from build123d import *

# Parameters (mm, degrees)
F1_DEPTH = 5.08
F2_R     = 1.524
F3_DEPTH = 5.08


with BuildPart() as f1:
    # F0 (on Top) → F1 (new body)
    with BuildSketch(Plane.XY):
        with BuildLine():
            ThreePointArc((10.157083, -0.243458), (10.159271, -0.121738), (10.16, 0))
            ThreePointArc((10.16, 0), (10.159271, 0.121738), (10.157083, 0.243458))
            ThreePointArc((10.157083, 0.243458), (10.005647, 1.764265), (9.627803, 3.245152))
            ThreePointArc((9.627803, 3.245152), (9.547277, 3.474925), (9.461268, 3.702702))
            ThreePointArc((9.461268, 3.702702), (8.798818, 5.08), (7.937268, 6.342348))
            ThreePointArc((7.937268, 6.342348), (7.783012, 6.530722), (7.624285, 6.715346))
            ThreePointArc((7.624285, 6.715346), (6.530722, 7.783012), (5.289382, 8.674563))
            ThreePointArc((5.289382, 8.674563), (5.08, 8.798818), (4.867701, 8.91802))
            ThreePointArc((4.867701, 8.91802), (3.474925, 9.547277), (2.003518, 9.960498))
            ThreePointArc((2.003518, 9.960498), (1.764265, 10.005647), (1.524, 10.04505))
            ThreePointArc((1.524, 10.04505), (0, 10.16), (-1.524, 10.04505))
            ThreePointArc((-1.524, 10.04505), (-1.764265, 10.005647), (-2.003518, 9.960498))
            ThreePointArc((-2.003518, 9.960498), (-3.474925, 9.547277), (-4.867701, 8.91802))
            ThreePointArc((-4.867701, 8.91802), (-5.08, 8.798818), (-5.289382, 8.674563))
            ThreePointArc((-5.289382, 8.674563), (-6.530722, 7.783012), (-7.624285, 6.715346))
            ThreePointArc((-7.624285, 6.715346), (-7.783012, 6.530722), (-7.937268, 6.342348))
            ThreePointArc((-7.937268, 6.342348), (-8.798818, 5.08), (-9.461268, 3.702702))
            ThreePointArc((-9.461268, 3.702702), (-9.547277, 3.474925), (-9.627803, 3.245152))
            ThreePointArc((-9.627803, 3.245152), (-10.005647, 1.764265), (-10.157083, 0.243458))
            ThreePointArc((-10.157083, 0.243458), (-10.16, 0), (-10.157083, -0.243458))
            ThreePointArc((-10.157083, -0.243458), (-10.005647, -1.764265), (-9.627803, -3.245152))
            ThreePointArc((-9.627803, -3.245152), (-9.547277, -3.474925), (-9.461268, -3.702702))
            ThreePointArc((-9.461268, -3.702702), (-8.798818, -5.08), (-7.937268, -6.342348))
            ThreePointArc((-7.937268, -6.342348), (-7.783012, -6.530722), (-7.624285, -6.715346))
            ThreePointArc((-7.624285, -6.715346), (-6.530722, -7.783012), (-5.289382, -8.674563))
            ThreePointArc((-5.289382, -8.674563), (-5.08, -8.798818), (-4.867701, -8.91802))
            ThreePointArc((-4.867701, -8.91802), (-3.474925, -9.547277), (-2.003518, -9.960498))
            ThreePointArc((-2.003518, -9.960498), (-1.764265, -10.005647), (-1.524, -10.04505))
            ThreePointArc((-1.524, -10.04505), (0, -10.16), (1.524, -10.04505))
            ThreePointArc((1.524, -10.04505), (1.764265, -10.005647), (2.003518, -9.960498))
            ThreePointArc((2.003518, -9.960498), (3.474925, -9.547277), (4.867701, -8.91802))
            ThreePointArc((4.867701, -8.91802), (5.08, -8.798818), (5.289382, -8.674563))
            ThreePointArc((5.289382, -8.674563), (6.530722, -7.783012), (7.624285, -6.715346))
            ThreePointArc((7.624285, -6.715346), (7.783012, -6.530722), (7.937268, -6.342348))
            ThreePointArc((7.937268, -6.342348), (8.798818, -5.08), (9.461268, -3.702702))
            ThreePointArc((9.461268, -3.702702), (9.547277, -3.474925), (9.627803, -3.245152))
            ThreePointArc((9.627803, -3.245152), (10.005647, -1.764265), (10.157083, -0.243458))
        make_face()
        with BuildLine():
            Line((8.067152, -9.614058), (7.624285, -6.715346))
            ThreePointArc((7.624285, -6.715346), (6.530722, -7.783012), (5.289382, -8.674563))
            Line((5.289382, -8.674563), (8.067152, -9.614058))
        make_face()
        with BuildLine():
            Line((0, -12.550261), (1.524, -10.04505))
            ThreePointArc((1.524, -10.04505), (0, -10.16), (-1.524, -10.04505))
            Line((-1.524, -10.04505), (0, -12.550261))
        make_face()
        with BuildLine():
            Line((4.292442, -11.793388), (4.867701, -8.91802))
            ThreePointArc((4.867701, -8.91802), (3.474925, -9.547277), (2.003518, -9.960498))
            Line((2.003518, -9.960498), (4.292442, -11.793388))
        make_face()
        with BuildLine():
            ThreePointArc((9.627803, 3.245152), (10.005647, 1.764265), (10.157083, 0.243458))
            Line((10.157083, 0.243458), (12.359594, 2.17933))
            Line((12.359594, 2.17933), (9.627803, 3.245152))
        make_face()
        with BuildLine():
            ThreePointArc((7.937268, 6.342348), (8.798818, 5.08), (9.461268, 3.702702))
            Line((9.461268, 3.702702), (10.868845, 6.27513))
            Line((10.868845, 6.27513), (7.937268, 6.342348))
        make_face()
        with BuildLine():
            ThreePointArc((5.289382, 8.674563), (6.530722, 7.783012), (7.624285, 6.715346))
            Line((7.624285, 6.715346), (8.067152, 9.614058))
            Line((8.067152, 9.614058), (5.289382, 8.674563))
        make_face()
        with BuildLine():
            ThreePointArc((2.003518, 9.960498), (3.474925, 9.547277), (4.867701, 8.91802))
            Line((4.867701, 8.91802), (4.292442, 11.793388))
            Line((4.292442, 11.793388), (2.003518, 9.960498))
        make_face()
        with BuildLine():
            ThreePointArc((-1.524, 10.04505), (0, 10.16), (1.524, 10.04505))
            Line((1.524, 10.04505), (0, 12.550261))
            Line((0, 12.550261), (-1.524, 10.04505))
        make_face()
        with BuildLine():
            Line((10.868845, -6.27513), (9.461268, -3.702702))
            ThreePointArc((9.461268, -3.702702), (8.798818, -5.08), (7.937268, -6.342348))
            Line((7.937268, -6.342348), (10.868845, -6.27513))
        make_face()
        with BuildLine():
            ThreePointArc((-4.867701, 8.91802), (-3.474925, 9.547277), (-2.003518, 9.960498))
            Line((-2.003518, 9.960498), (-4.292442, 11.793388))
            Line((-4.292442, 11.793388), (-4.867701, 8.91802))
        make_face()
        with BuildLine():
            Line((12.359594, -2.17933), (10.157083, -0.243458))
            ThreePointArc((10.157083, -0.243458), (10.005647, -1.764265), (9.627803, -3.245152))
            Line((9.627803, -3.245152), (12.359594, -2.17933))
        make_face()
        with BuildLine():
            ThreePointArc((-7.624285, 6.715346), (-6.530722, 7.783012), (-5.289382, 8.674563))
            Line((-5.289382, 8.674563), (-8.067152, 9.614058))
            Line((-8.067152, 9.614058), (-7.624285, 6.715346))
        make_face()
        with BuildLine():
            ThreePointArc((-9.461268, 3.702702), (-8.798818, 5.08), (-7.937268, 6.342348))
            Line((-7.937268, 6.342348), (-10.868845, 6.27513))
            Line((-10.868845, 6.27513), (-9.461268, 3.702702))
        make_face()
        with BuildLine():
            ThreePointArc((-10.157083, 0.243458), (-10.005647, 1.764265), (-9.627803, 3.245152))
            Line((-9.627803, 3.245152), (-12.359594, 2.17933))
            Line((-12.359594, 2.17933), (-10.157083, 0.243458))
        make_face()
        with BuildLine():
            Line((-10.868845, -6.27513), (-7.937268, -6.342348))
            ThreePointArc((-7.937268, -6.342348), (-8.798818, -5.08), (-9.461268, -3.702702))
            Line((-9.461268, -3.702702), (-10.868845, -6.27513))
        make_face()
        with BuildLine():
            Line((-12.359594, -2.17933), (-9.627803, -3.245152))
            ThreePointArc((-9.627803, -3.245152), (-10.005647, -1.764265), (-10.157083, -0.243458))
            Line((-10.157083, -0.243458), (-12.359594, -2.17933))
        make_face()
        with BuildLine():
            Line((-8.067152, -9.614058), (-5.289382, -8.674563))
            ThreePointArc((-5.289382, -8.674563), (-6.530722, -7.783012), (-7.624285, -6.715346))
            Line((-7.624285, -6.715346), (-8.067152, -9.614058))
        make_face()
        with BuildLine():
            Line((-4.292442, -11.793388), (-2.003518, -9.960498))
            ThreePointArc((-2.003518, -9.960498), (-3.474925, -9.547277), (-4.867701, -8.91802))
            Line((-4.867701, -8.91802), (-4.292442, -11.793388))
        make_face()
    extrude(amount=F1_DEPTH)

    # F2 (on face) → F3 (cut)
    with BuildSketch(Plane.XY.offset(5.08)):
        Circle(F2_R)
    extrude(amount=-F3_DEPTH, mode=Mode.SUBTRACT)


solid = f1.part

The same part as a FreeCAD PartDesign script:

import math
import FreeCAD as App
import Part
import Sketcher

V = App.Vector
Q = App.Units.Quantity

doc = App.newDocument("Part")
params = doc.addObject("Spreadsheet::Sheet", "Params")
for row, (alias, value) in enumerate([
    ("pad1_length", "0.2 in"),
    ("sketch2_diameter", "0.12 in"),
    ("pocket1_length", "0.2 in"),
], start=1):
    params.set(f"A{row}", alias)
    params.set(f"B{row}", "=" + value)
    params.setAlias(f"B{row}", alias)

body = doc.addObject("PartDesign::Body", "Body")

sketch1 = body.newObject("Sketcher::SketchObject", "Sketch")
sketch1.AttachmentSupport = (doc.getObject("XY_Plane"), [""])
sketch1.MapMode = "FlatFace"
sketch1.addGeometry([
    Part.ArcOfCircle(Part.Circle(V(0.002713, -0.000047, 0), V(0, 0, 1), 10.157287), math.radians(-1.37318), math.radians(0.000263)),
    Part.ArcOfCircle(Part.Circle(V(0.002713, 0.000047, 0), V(0, 0, 1), 10.157287), math.radians(-0.000263), math.radians(1.37318)),
    Part.LineSegment(V(10.157083, 0.243458, 0), V(12.359594, 2.17933, 0)),
    Part.LineSegment(V(12.359594, 2.17933, 0), V(9.627803, 3.245152, 0)),
    Part.ArcOfCircle(Part.Circle(V(0.000596, 0.000208, 0), V(0, 0, 1), 10.159369), math.radians(18.626889), math.radians(21.373204)),
    Part.LineSegment(V(9.461268, 3.702702, 0), V(10.868845, 6.27513, 0)),
    Part.LineSegment(V(10.868845, 6.27513, 0), V(7.937268, 6.342348, 0)),
    Part.ArcOfCircle(Part.Circle(V(0.001065, 0.000883, 0), V(0, 0, 1), 10.158617), math.radians(38.626787), math.radians(41.373306)),
    Part.LineSegment(V(7.624285, 6.715346, 0), V(8.067152, 9.614058, 0)),
    Part.LineSegment(V(8.067152, 9.614058, 0), V(5.289382, 8.674563, 0)),
    Part.ArcOfCircle(Part.Circle(V(-0.000098, -0.000194, 0), V(0, 0, 1), 10.160217), math.radians(58.627021), math.radians(61.373109)),
    Part.LineSegment(V(4.867701, 8.91802, 0), V(4.292442, 11.793388, 0)),
    Part.LineSegment(V(4.292442, 11.793388, 0), V(2.003518, 9.960498, 0)),
    Part.ArcOfCircle(Part.Circle(V(-0.000068, -0.000382, 0), V(0, 0, 1), 10.160388), math.radians(78.626974), math.radians(81.373017)),
    Part.LineSegment(V(1.524, 10.04505, 0), V(0, 12.550261, 0)),
    Part.LineSegment(V(0, 12.550261, 0), V(-1.524, 10.04505, 0)),
    Part.ArcOfCircle(Part.Circle(V(0.000068, -0.000382, 0), V(0, 0, 1), 10.160388), math.radians(98.626983), math.radians(101.373026)),
    Part.LineSegment(V(-2.003518, 9.960498, 0), V(-4.292442, 11.793388, 0)),
    Part.LineSegment(V(-4.292442, 11.793388, 0), V(-4.867701, 8.91802, 0)),
    Part.ArcOfCircle(Part.Circle(V(0.000098, -0.000194, 0), V(0, 0, 1), 10.160217), math.radians(118.626891), math.radians(121.372979)),
    Part.LineSegment(V(-5.289382, 8.674563, 0), V(-8.067152, 9.614058, 0)),
    Part.LineSegment(V(-8.067152, 9.614058, 0), V(-7.624285, 6.715346, 0)),
    Part.ArcOfCircle(Part.Circle(V(-0.001065, 0.000883, 0), V(0, 0, 1), 10.158617), math.radians(138.626694), math.radians(141.373213)),
    Part.LineSegment(V(-7.937268, 6.342348, 0), V(-10.868845, 6.27513, 0)),
    Part.LineSegment(V(-10.868845, 6.27513, 0), V(-9.461268, 3.702702, 0)),
    Part.ArcOfCircle(Part.Circle(V(-0.000596, 0.000208, 0), V(0, 0, 1), 10.159369), math.radians(158.626796), math.radians(161.373111)),
    Part.LineSegment(V(-9.627803, 3.245152, 0), V(-12.359594, 2.17933, 0)),
    Part.LineSegment(V(-12.359594, 2.17933, 0), V(-10.157083, 0.243458, 0)),
    Part.ArcOfCircle(Part.Circle(V(0.001177, 0, 0), V(0, 0, 1), 10.161177), math.radians(178.627083), math.radians(181.372917)),
    Part.LineSegment(V(-10.157083, -0.243458, 0), V(-12.359594, -2.17933, 0)),
    Part.LineSegment(V(-12.359594, -2.17933, 0), V(-9.627803, -3.245152, 0)),
    Part.ArcOfCircle(Part.Circle(V(-0.000596, -0.000208, 0), V(0, 0, 1), 10.159369), math.radians(-161.373111), math.radians(-158.626796)),
    Part.LineSegment(V(-9.461268, -3.702702, 0), V(-10.868845, -6.27513, 0)),
    Part.LineSegment(V(-10.868845, -6.27513, 0), V(-7.937268, -6.342348, 0)),
    Part.ArcOfCircle(Part.Circle(V(-0.001065, -0.000883, 0), V(0, 0, 1), 10.158617), math.radians(-141.373213), math.radians(-138.626694)),
    Part.LineSegment(V(-7.624285, -6.715346, 0), V(-8.067152, -9.614058, 0)),
    Part.LineSegment(V(-8.067152, -9.614058, 0), V(-5.289382, -8.674563, 0)),
    Part.ArcOfCircle(Part.Circle(V(0.000098, 0.000194, 0), V(0, 0, 1), 10.160217), math.radians(-121.372979), math.radians(-118.626891)),
    Part.LineSegment(V(-4.867701, -8.91802, 0), V(-4.292442, -11.793388, 0)),
    Part.LineSegment(V(-4.292442, -11.793388, 0), V(-2.003518, -9.960498, 0)),
    Part.ArcOfCircle(Part.Circle(V(0.000068, 0.000382, 0), V(0, 0, 1), 10.160388), math.radians(-101.373026), math.radians(-98.626983)),
    Part.LineSegment(V(-1.524, -10.04505, 0), V(0, -12.550261, 0)),
    Part.LineSegment(V(0, -12.550261, 0), V(1.524, -10.04505, 0)),
    Part.ArcOfCircle(Part.Circle(V(-0.000068, 0.000382, 0), V(0, 0, 1), 10.160388), math.radians(-81.373017), math.radians(-78.626974)),
    Part.LineSegment(V(2.003518, -9.960498, 0), V(4.292442, -11.793388, 0)),
    Part.LineSegment(V(4.292442, -11.793388, 0), V(4.867701, -8.91802, 0)),
    Part.ArcOfCircle(Part.Circle(V(-0.000098, 0.000194, 0), V(0, 0, 1), 10.160217), math.radians(-61.373109), math.radians(-58.627021)),
    Part.LineSegment(V(5.289382, -8.674563, 0), V(8.067152, -9.614058, 0)),
    Part.LineSegment(V(8.067152, -9.614058, 0), V(7.624285, -6.715346, 0)),
    Part.ArcOfCircle(Part.Circle(V(0.001065, -0.000883, 0), V(0, 0, 1), 10.158617), math.radians(-41.373306), math.radians(-38.626787)),
    Part.LineSegment(V(7.937268, -6.342348, 0), V(10.868845, -6.27513, 0)),
    Part.LineSegment(V(10.868845, -6.27513, 0), V(9.461268, -3.702702, 0)),
    Part.ArcOfCircle(Part.Circle(V(0.000596, -0.000208, 0), V(0, 0, 1), 10.159369), math.radians(-21.373204), math.radians(-18.626889)),
    Part.LineSegment(V(9.627803, -3.245152, 0), V(12.359594, -2.17933, 0)),
    Part.LineSegment(V(12.359594, -2.17933, 0), V(10.157083, -0.243458, 0)),
], False)
sketch1.addConstraint([
    Sketcher.Constraint("Coincident", 0, 2, 1, 1),
    Sketcher.Constraint("Coincident", 1, 2, 2, 1),
    Sketcher.Constraint("Coincident", 2, 2, 3, 1),
    Sketcher.Constraint("Coincident", 3, 2, 4, 1),
    Sketcher.Constraint("Coincident", 4, 2, 5, 1),
    Sketcher.Constraint("Coincident", 5, 2, 6, 1),
    Sketcher.Constraint("Coincident", 6, 2, 7, 1),
    Sketcher.Constraint("Coincident", 7, 2, 8, 1),
    Sketcher.Constraint("Coincident", 8, 2, 9, 1),
    Sketcher.Constraint("Coincident", 9, 2, 10, 1),
    Sketcher.Constraint("Coincident", 10, 2, 11, 1),
    Sketcher.Constraint("Coincident", 11, 2, 12, 1),
    Sketcher.Constraint("Coincident", 12, 2, 13, 1),
    Sketcher.Constraint("Coincident", 13, 2, 14, 1),
    Sketcher.Constraint("Coincident", 14, 2, 15, 1),
    Sketcher.Constraint("Coincident", 15, 2, 16, 1),
    Sketcher.Constraint("Coincident", 16, 2, 17, 1),
    Sketcher.Constraint("Coincident", 17, 2, 18, 1),
    Sketcher.Constraint("Coincident", 18, 2, 19, 1),
    Sketcher.Constraint("Coincident", 19, 2, 20, 1),
    Sketcher.Constraint("Coincident", 20, 2, 21, 1),
    Sketcher.Constraint("Coincident", 21, 2, 22, 1),
    Sketcher.Constraint("Coincident", 22, 2, 23, 1),
    Sketcher.Constraint("Coincident", 23, 2, 24, 1),
    Sketcher.Constraint("Coincident", 24, 2, 25, 1),
    Sketcher.Constraint("Coincident", 25, 2, 26, 1),
    Sketcher.Constraint("Coincident", 26, 2, 27, 1),
    Sketcher.Constraint("Coincident", 27, 2, 28, 1),
    Sketcher.Constraint("Coincident", 28, 2, 29, 1),
    Sketcher.Constraint("Coincident", 29, 2, 30, 1),
    Sketcher.Constraint("Coincident", 30, 2, 31, 1),
    Sketcher.Constraint("Coincident", 31, 2, 32, 1),
    Sketcher.Constraint("Coincident", 32, 2, 33, 1),
    Sketcher.Constraint("Coincident", 33, 2, 34, 1),
    Sketcher.Constraint("Coincident", 34, 2, 35, 1),
    Sketcher.Constraint("Coincident", 35, 2, 36, 1),
    Sketcher.Constraint("Coincident", 36, 2, 37, 1),
    Sketcher.Constraint("Coincident", 37, 2, 38, 1),
    Sketcher.Constraint("Coincident", 38, 2, 39, 1),
    Sketcher.Constraint("Coincident", 39, 2, 40, 1),
    Sketcher.Constraint("Coincident", 40, 2, 41, 1),
    Sketcher.Constraint("Coincident", 41, 2, 42, 1),
    Sketcher.Constraint("Coincident", 42, 2, 43, 1),
    Sketcher.Constraint("Coincident", 43, 2, 44, 1),
    Sketcher.Constraint("Coincident", 44, 2, 45, 1),
    Sketcher.Constraint("Coincident", 45, 2, 46, 1),
    Sketcher.Constraint("Coincident", 46, 2, 47, 1),
    Sketcher.Constraint("Coincident", 47, 2, 48, 1),
    Sketcher.Constraint("Coincident", 48, 2, 49, 1),
    Sketcher.Constraint("Coincident", 49, 2, 50, 1),
    Sketcher.Constraint("Coincident", 50, 2, 51, 1),
    Sketcher.Constraint("Coincident", 51, 2, 52, 1),
    Sketcher.Constraint("Coincident", 52, 2, 53, 1),
    Sketcher.Constraint("Coincident", 53, 2, 54, 1),
    Sketcher.Constraint("Coincident", 54, 2, 0, 1),
    Sketcher.Constraint("Equal", 0, 1),
    Sketcher.Constraint("Equal", 13, 16),
    Sketcher.Constraint("Equal", 10, 19),
    Sketcher.Constraint("Equal", 7, 22),
    Sketcher.Constraint("Equal", 4, 25),
    Sketcher.Constraint("Equal", 25, 31),
    Sketcher.Constraint("Equal", 22, 34),
    Sketcher.Constraint("Equal", 19, 37),
    Sketcher.Constraint("Equal", 16, 40),
    Sketcher.Constraint("Equal", 40, 43),
    Sketcher.Constraint("Equal", 37, 46),
    Sketcher.Constraint("Equal", 34, 49),
    Sketcher.Constraint("Equal", 31, 52),
    Sketcher.Constraint("Symmetric", 4, 3, 31, 3, -1, 1),
    Sketcher.Constraint("Symmetric", 7, 3, 34, 3, -1, 1),
    Sketcher.Constraint("Symmetric", 10, 3, 37, 3, -1, 1),
    Sketcher.Constraint("Symmetric", 13, 3, 40, 3, -1, 1),
    Sketcher.Constraint("Symmetric", 16, 3, 43, 3, -1, 1),
    Sketcher.Constraint("Symmetric", 19, 3, 46, 3, -1, 1),
    Sketcher.Constraint("Symmetric", 22, 3, 49, 3, -1, 1),
    Sketcher.Constraint("Symmetric", 25, 3, 52, 3, -1, 1),
    Sketcher.Constraint("Symmetric", 1, 2, 28, 2, -1, 1),
    Sketcher.Constraint("Symmetric", 2, 2, 29, 2, -1, 1),
    Sketcher.Constraint("Symmetric", 5, 2, 32, 2, -1, 1),
    Sketcher.Constraint("Symmetric", 8, 2, 35, 2, -1, 1),
    Sketcher.Constraint("Symmetric", 11, 2, 38, 2, -1, 1),
    Sketcher.Constraint("Symmetric", 14, 2, 41, 2, -1, 1),
    Sketcher.Constraint("Symmetric", 17, 2, 44, 2, -1, 1),
    Sketcher.Constraint("Symmetric", 20, 2, 47, 2, -1, 1),
    Sketcher.Constraint("Symmetric", 23, 2, 50, 2, -1, 1),
    Sketcher.Constraint("Symmetric", 26, 2, 53, 2, -1, 1),
    Sketcher.Constraint("Symmetric", 27, 2, 54, 2, -1, 1),
    Sketcher.Constraint("Symmetric", 13, 3, 16, 3, -2),
    Sketcher.Constraint("Symmetric", 10, 3, 19, 3, -2),
    Sketcher.Constraint("Symmetric", 7, 3, 22, 3, -2),
    Sketcher.Constraint("Symmetric", 4, 3, 25, 3, -2),
    Sketcher.Constraint("Symmetric", 11, 2, 17, 2, -2),
    Sketcher.Constraint("Symmetric", 8, 2, 20, 2, -2),
    Sketcher.Constraint("Symmetric", 5, 2, 23, 2, -2),
    Sketcher.Constraint("Symmetric", 2, 2, 26, 2, -2),
    Sketcher.Constraint("Symmetric", 1, 2, 27, 2, -2),
    Sketcher.Constraint("PointOnObject", 0, 2, -1),
    Sketcher.Constraint("PointOnObject", 14, 2, -2),
    Sketcher.Constraint("Parallel", 3, 30),
    Sketcher.Constraint("Parallel", 5, 32),
    Sketcher.Constraint("Parallel", 6, 33),
    Sketcher.Constraint("Parallel", 8, 35),
    Sketcher.Constraint("Parallel", 9, 36),
    Sketcher.Constraint("Parallel", 11, 38),
    Sketcher.Constraint("Parallel", 12, 39),
    Sketcher.Constraint("Parallel", 14, 41),
    Sketcher.Constraint("Parallel", 15, 42),
    Sketcher.Constraint("Parallel", 17, 44),
    Sketcher.Constraint("Parallel", 18, 45),
    Sketcher.Constraint("Parallel", 20, 47),
    Sketcher.Constraint("Parallel", 21, 48),
    Sketcher.Constraint("Parallel", 23, 50),
    Sketcher.Constraint("Parallel", 24, 51),
    Sketcher.Constraint("Parallel", 26, 53),
    Sketcher.Constraint("Horizontal", 13, 2, 15, 2),
    Sketcher.Constraint("Horizontal", 12, 2, 16, 2),
    Sketcher.Constraint("Horizontal", 10, 2, 18, 2),
    Sketcher.Constraint("Horizontal", 9, 2, 19, 2),
    Sketcher.Constraint("Horizontal", 7, 2, 21, 2),
    Sketcher.Constraint("Horizontal", 6, 2, 22, 2),
    Sketcher.Constraint("Horizontal", 4, 2, 24, 2),
    Sketcher.Constraint("Horizontal", 3, 2, 25, 2),
    Sketcher.Constraint("Equal", 2, 3),
    Sketcher.Constraint("Equal", 3, 5),
    Sketcher.Constraint("Equal", 5, 6),
    Sketcher.Constraint("Equal", 6, 8),
    Sketcher.Constraint("Equal", 8, 9),
    Sketcher.Constraint("Equal", 9, 11),
    Sketcher.Constraint("Equal", 11, 12),
    Sketcher.Constraint("Equal", 12, 14),
    Sketcher.Constraint("DistanceX", -1, 1, 0, 2, Q("0.4 in")),
    Sketcher.Constraint("DistanceX", -1, 1, 13, 2, Q("0.06 in")),
    Sketcher.Constraint("Radius", 4, Q("10.159369 mm")),
    Sketcher.Constraint("Radius", 13, Q("10.160388 mm")),
    Sketcher.Constraint("Radius", 0, Q("10.157287 mm")),
    Sketcher.Constraint("Radius", 7, Q("10.158617 mm")),
    Sketcher.Constraint("Radius", 10, Q("10.160217 mm")),
    Sketcher.Constraint("Radius", 28, Q("10.161177 mm")),
    Sketcher.Constraint("DistanceY", -1, 1, 4, 2, Q("3.702702 mm")),
    Sketcher.Constraint("DistanceX", -1, 1, 10, 2, Q("4.867701 mm")),
    Sketcher.Constraint("DistanceY", -1, 1, 4, 3, Q("0.000208 mm")),
    Sketcher.Constraint("DistanceY", -1, 1, 2, 2, Q("2.17933 mm")),
    Sketcher.Constraint("DistanceY", -1, 1, 3, 2, Q("3.245152 mm")),
    Sketcher.Constraint("DistanceY", -1, 1, 5, 2, Q("6.27513 mm")),
    Sketcher.Constraint("DistanceX", -1, 1, 6, 2, Q("7.937268 mm")),
    Sketcher.Constraint("DistanceY", -1, 1, 6, 2, Q("6.342348 mm")),
    Sketcher.Constraint("DistanceX", -1, 1, 9, 2, Q("5.289382 mm")),
    Sketcher.Constraint("DistanceY", -1, 1, 10, 2, Q("8.91802 mm")),
    Sketcher.Constraint("DistanceX", -1, 1, 12, 2, Q("2.003518 mm")),
    Sketcher.Constraint("DistanceY", -1, 1, 13, 2, Q("10.04505 mm")),
    Sketcher.Constraint("DistanceY", -1, 1, 14, 2, Q("12.550261 mm")),
    Sketcher.Constraint("DistanceX", -1, 1, 7, 3, Q("0.001065 mm")),
    Sketcher.Constraint("DistanceY", 10, 3, -1, 1, Q("0.000194 mm")),
    Sketcher.Constraint("DistanceY", 13, 3, -1, 1, Q("0.000382 mm")),
    Sketcher.Constraint("DistanceX", -1, 1, 28, 3, Q("0.001177 mm")),
    Sketcher.Constraint("DistanceX", -1, 1, 7, 2, Q("7.624285 mm")),
])
pad1 = body.newObject("PartDesign::Pad", "Pad")
pad1.Profile = sketch1
pad1.setExpression("Length", "Params.pad1_length")

sketch2 = body.newObject("Sketcher::SketchObject", "Sketch001")
sketch2.AttachmentSupport = (doc.getObject("XY_Plane"), [""])
sketch2.MapMode = "FlatFace"
sketch2.AttachmentOffset = App.Placement(V(0, 0, 0.2 * 25.4), App.Rotation())
sketch2.addGeometry(Part.Circle(V(0, 0, 0), V(0, 0, 1), 1.5), False)
sketch2.addConstraint([
    Sketcher.Constraint("Coincident", 0, 3, -1, 1),
    Sketcher.Constraint("Diameter", 0, Q("0.12 in")),
])
sketch2.setExpression("Constraints[1]", "Params.sketch2_diameter")
pocket1 = body.newObject("PartDesign::Pocket", "Pocket")
pocket1.Profile = sketch2
pocket1.setExpression("Length", "Params.pocket1_length")

doc.recompute()
